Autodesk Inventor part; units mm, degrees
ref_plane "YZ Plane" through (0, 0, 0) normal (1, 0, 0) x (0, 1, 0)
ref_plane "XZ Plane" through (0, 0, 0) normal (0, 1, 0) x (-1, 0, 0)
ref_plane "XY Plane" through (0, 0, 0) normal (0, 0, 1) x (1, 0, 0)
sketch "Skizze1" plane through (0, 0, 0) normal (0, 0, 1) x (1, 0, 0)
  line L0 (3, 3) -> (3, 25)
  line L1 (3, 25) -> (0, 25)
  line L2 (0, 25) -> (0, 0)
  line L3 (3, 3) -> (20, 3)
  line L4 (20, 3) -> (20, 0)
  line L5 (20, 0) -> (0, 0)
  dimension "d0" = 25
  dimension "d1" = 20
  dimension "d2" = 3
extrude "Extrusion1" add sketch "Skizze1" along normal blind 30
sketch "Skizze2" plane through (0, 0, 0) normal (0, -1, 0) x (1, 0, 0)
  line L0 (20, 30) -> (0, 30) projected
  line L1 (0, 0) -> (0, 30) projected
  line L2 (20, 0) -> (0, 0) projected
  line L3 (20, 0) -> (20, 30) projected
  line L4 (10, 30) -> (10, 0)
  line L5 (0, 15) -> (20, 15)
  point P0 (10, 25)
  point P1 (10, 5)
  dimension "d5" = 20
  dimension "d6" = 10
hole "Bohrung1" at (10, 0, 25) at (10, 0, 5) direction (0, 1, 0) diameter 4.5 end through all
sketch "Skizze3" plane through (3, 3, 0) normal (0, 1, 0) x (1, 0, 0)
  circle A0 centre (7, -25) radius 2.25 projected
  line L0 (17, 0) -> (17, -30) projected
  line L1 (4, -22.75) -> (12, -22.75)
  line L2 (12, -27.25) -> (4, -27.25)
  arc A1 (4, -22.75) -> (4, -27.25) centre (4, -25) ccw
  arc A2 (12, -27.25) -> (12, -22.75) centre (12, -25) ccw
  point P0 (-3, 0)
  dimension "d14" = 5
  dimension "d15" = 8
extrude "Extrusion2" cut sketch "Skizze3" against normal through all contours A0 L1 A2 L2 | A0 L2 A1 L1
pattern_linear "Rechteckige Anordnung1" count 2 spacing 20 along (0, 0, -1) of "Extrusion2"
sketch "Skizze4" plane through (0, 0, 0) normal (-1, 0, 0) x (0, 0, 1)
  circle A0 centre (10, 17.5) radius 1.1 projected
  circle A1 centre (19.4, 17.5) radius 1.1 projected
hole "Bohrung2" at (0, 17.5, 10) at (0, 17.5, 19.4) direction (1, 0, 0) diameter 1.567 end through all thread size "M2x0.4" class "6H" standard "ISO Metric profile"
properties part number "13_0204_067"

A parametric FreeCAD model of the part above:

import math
import FreeCAD as App
import Part
import Sketcher

V = App.Vector
Q = App.Units.Quantity

doc = App.newDocument("Part")
body = doc.addObject("PartDesign::Body", "Body")

# Sketch on XY plane
sketch1 = body.newObject("Sketcher::SketchObject", "Sketch")
sketch1.AttachmentSupport = (doc.getObject("XY_Plane"), [""])
sketch1.MapMode = "FlatFace"
sketch1.addGeometry([
    Part.LineSegment(V(20, 3, 0), V(3, 3, 0)),  # 0
    Part.LineSegment(V(3, 3, 0), V(3, 25, 0)),  # 1
    Part.LineSegment(V(3, 25, 0), V(0, 25, 0)),  # 2
    Part.LineSegment(V(0, 25, 0), V(0, 0, 0)),  # 3
    Part.LineSegment(V(0, 0, 0), V(20, 0, 0)),  # 4
    Part.LineSegment(V(20, 0, 0), V(20, 3, 0)),  # 5
], False)
sketch1.addConstraint([
    Sketcher.Constraint("Coincident", 0, 2, 1, 1),
    Sketcher.Constraint("Coincident", 1, 2, 2, 1),
    Sketcher.Constraint("Coincident", 2, 2, 3, 1),
    Sketcher.Constraint("Coincident", 3, 2, 4, 1),
    Sketcher.Constraint("Coincident", 4, 2, 5, 1),
    Sketcher.Constraint("Coincident", 5, 2, 0, 1),
    Sketcher.Constraint("Horizontal", 0),
    Sketcher.Constraint("Vertical", 1),
    Sketcher.Constraint("Horizontal", 2),
    Sketcher.Constraint("Vertical", 3),
    Sketcher.Constraint("Horizontal", 4),
    Sketcher.Constraint("Vertical", 5),
    Sketcher.Constraint("Coincident", 3, 2, -1, 1),
    Sketcher.Constraint("Equal", 2, 5),
    Sketcher.Constraint("DistanceX", 2, 2, 2, 1, Q("3 mm")),
    Sketcher.Constraint("DistanceX", 4, 1, 4, 2, Q("20 mm")),
    Sketcher.Constraint("DistanceY", 3, 2, 3, 1, Q("25 mm")),
])
pad1 = body.newObject("PartDesign::Pad", "Pad")
pad1.Profile = sketch1
pad1.Length = 30

# Sketch on XZ plane
sketch2 = body.newObject("Sketcher::SketchObject", "Sketch001")
sketch2.AttachmentSupport = (doc.getObject("XZ_Plane"), [""])
sketch2.MapMode = "FlatFace"
sketch2.addGeometry([
    Part.Circle(V(10, 25, 0), V(0, 0, 1), 2.2),
    Part.Circle(V(10, 5, 0), V(0, 0, 1), 2.2),
], False)
sketch2.addConstraint([
    Sketcher.Constraint("Equal", 0, 1),
    Sketcher.Constraint("Vertical", 0, 3, 1, 3),
    Sketcher.Constraint("Diameter", 0, Q("4.5 mm")),
    Sketcher.Constraint("DistanceX", -1, 1, 0, 3, Q("10 mm")),
    Sketcher.Constraint("DistanceY", -1, 1, 0, 3, Q("25 mm")),
    Sketcher.Constraint("DistanceY", -1, 1, 1, 3, Q("5 mm")),
])
doc.recompute()
hole = body.newObject("PartDesign::Hole", "Hole")
hole.Profile = sketch2
hole.ThreadType = "None"
hole.Diameter = 4.5
hole.DepthType = "ThroughAll"

# Sketch on XZ plane
sketch3 = body.newObject("Sketcher::SketchObject", "Sketch002")
sketch3.AttachmentSupport = (doc.getObject("XZ_Plane"), [""])
sketch3.MapMode = "FlatFace"
sketch3.AttachmentOffset = App.Placement(V(0, 0, -3), App.Rotation())
sketch3.addGeometry([
    Part.ArcOfCircle(Part.Circle(V(10, 25, 0), V(0, 0, 1), 2.2), math.radians(-90), math.radians(90)),  # 0
    Part.LineSegment(V(10, 27.2, 0), V(15, 27.2, 0)),  # 1
    Part.ArcOfCircle(Part.Circle(V(15, 25, 0), V(0, 0, 1), 2.2), math.radians(-90), math.radians(90)),  # 2
    Part.LineSegment(V(15, 22.8, 0), V(10, 22.8, 0)),  # 3
    Part.ArcOfCircle(Part.Circle(V(10, 25, 0), V(0, 0, 1), 2.2), math.radians(90), math.radians(270)),  # 4
    Part.LineSegment(V(10, 22.8, 0), V(7, 22.8, 0)),  # 5
    Part.ArcOfCircle(Part.Circle(V(7, 25, 0), V(0, 0, 1), 2.2), math.radians(90), math.radians(270)),  # 6
    Part.LineSegment(V(7, 27.2, 0), V(10, 27.2, 0)),  # 7
], False)
sketch3.addConstraint([
    Sketcher.Constraint("Tangent", 0, 2, 1, 1),
    Sketcher.Constraint("Tangent", 1, 2, 2, 2),
    Sketcher.Constraint("Tangent", 2, 1, 3, 1),
    Sketcher.Constraint("Tangent", 3, 2, 0, 1),
    Sketcher.Constraint("Tangent", 4, 2, 5, 1),
    Sketcher.Constraint("Tangent", 5, 2, 6, 2),
    Sketcher.Constraint("Tangent", 6, 1, 7, 1),
    Sketcher.Constraint("Tangent", 7, 2, 4, 1),
    Sketcher.Constraint("Horizontal", 1),
    Sketcher.Constraint("Horizontal", 3),
    Sketcher.Constraint("Horizontal", 5),
    Sketcher.Constraint("Horizontal", 7),
    Sketcher.Constraint("Coincident", 4, 3, 0, 3),
    Sketcher.Constraint("Equal", 2, 4),
    Sketcher.Constraint("DistanceX", 1, 1, 1, 2, Q("5 mm")),
    Sketcher.Constraint("DistanceX", 6, 3, 2, 3, Q("8 mm")),
    Sketcher.Constraint("Radius", 0, Q("2.25 mm")),
    Sketcher.Constraint("DistanceX", -1, 1, 0, 3, Q("10 mm")),
    Sketcher.Constraint("DistanceY", -1, 1, 0, 3, Q("25 mm")),
])
pocket1 = body.newObject("PartDesign::Pocket", "Pocket")
pocket1.Profile = sketch3
pocket1.Type = "ThroughAll"
pocket1.Reversed = True
doc.recompute()

linearpattern = body.newObject("PartDesign::LinearPattern", "LinearPattern")
linearpattern.Originals = [pocket1]
linearpattern.Direction = (doc.getObject("Z_Axis"), [""])
linearpattern.Mode = "offset"
linearpattern.Offset = 20
linearpattern.Occurrences = 2
linearpattern.Reversed = True
body.Tip = linearpattern

# Sketch on YZ plane
sketch4 = body.newObject("Sketcher::SketchObject", "Sketch003")
sketch4.AttachmentSupport = (doc.getObject("YZ_Plane"), [""])
sketch4.MapMode = "FlatFace"
sketch4.addGeometry([
    Part.Circle(V(17.5, 10, 0), V(0, 0, 1), 0.8),
    Part.Circle(V(17.5, 19.4, 0), V(0, 0, 1), 0.8),
], False)
sketch4.addConstraint([
    Sketcher.Constraint("Equal", 0, 1),
    Sketcher.Constraint("Vertical", 0, 3, 1, 3),
    Sketcher.Constraint("Diameter", 0, Q("1.567 mm")),
    Sketcher.Constraint("DistanceY", -1, 1, 0, 3, Q("10 mm")),
    Sketcher.Constraint("DistanceX", -1, 1, 0, 3, Q("17.5 mm")),
    Sketcher.Constraint("DistanceY", -1, 1, 1, 3, Q("19.4 mm")),
])
doc.recompute()
hole2 = body.newObject("PartDesign::Hole", "Hole001")
hole2.Profile = sketch4
hole2.ThreadType = "None"
hole2.Diameter = 1.567
hole2.DepthType = "ThroughAll"
hole2.Reversed = True

doc.recompute()
